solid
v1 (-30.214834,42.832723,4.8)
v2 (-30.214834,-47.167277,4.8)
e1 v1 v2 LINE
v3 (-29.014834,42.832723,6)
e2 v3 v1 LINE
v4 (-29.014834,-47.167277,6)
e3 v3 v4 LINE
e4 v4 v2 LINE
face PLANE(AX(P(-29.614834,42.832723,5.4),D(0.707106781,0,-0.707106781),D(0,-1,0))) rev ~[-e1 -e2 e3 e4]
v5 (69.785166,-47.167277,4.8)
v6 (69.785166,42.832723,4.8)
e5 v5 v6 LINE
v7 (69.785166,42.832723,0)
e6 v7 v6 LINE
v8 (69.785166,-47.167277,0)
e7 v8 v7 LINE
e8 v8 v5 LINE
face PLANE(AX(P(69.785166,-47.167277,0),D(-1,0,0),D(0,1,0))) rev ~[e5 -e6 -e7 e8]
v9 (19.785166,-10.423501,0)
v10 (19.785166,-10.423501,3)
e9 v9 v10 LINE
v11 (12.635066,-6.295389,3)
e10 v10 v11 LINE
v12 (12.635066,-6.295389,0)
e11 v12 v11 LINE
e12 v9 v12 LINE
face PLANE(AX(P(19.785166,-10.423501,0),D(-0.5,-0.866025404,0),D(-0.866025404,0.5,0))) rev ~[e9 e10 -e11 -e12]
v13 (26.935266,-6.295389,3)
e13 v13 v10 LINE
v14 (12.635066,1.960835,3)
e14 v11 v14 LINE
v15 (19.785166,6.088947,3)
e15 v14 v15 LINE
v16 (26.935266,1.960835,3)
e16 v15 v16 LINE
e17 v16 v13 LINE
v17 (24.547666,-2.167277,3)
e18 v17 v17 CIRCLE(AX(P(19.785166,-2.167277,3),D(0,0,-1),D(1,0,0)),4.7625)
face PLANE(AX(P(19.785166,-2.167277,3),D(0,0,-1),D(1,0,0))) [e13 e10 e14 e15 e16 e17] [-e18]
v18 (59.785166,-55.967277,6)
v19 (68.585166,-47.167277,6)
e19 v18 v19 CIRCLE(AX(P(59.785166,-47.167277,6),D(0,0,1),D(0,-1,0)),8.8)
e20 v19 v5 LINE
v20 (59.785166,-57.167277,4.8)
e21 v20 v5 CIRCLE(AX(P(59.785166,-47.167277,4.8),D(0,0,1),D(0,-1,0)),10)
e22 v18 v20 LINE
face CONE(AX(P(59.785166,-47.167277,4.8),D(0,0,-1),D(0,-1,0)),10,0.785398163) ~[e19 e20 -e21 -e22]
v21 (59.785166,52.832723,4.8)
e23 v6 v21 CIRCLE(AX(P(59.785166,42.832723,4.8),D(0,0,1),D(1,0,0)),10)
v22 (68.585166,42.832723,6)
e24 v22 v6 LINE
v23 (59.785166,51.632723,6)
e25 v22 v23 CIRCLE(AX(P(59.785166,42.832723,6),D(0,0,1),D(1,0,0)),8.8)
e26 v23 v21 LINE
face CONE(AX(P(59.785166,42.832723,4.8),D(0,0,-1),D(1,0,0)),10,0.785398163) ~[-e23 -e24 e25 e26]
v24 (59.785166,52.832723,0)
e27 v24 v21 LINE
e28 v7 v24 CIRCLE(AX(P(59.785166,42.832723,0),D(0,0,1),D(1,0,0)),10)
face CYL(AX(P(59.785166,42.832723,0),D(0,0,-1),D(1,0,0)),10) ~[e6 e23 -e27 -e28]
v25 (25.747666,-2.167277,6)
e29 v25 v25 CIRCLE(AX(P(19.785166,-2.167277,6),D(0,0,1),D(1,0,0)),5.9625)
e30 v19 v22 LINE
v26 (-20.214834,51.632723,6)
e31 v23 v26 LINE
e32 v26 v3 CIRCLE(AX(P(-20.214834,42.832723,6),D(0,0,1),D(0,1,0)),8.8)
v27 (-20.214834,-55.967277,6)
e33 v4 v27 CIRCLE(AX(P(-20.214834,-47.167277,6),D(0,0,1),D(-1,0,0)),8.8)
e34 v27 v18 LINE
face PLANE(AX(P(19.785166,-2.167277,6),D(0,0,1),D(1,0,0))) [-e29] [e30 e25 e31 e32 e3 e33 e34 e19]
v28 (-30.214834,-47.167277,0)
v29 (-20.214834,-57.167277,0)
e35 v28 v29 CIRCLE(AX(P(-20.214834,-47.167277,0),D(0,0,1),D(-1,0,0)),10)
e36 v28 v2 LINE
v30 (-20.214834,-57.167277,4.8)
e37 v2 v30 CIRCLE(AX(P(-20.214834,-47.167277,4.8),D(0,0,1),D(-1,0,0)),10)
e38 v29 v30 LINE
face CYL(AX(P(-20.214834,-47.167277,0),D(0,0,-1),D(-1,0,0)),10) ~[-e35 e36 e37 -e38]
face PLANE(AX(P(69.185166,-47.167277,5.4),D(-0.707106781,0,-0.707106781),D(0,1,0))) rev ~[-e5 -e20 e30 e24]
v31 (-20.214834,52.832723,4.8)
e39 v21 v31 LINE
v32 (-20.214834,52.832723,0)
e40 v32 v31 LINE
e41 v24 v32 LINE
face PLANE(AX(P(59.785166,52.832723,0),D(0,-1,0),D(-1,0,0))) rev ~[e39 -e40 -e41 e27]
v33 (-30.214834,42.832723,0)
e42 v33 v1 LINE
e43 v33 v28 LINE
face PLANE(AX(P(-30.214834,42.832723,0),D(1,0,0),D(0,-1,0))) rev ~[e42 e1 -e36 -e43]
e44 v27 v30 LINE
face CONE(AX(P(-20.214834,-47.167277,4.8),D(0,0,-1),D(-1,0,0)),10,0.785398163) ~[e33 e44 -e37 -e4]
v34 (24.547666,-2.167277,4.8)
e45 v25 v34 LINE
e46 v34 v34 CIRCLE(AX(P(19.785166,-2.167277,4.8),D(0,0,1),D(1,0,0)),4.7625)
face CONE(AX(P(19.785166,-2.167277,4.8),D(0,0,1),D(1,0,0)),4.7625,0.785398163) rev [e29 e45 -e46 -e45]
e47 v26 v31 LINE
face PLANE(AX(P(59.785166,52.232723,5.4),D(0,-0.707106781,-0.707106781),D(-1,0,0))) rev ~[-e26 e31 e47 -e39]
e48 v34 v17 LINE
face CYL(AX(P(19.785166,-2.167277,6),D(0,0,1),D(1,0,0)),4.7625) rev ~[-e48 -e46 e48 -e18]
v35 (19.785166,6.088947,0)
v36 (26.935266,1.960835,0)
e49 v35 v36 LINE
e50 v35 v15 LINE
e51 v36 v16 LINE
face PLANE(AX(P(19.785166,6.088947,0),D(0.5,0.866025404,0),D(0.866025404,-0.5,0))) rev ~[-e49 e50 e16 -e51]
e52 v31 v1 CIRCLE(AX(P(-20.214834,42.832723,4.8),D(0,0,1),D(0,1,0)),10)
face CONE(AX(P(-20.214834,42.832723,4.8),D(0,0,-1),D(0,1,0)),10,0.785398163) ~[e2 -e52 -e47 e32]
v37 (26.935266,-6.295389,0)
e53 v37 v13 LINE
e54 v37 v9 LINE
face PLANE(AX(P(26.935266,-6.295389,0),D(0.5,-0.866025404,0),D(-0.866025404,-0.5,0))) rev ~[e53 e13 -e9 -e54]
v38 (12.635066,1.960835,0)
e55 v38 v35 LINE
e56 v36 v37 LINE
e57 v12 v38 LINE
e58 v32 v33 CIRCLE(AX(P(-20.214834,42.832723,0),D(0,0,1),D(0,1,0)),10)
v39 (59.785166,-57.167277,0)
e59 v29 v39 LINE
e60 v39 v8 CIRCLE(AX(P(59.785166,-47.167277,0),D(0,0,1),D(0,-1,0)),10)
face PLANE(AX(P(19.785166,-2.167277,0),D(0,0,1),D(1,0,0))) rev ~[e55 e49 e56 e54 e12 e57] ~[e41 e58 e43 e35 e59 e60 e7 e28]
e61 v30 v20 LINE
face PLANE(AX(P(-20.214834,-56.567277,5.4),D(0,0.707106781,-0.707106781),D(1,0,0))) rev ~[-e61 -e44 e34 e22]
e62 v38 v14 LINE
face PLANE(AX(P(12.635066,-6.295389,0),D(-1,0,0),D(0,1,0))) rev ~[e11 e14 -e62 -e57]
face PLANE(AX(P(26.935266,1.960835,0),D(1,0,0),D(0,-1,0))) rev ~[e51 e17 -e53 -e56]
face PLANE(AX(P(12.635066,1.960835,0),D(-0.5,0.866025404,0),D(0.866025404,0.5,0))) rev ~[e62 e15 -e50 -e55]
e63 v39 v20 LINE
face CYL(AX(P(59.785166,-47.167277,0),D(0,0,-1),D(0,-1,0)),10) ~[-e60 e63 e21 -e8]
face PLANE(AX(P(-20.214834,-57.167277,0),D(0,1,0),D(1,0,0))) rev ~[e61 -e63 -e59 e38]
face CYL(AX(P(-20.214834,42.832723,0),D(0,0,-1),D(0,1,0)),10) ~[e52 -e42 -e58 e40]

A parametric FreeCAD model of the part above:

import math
import FreeCAD as App
import Part
import Sketcher

V = App.Vector
Q = App.Units.Quantity


def edges_at(feature, points):
    """Names of the edges that pass closest to the given points."""
    edges = feature.Shape.Edges
    near = lambda p: min(range(len(edges)), key=lambda i: edges[i].distToShape(Part.Vertex(*p))[0])
    return sorted({f"Edge{near(p) + 1}" for p in points})


def add_polygon(sketch, points):
    """Adds a closed chain of lines whose ends are joined by coincident constraints."""
    first, n = sketch.GeometryCount, len(points)
    for a, b in zip(points, points[1:] + points[:1]):
        sketch.addGeometry(Part.LineSegment(App.Vector(*a, 0), App.Vector(*b, 0)), False)
    for i in range(n):
        sketch.addConstraint(Sketcher.Constraint("Coincident", first + i, 2, first + (i + 1) % n, 1))

doc = App.newDocument("Part")
body = doc.addObject("PartDesign::Body", "Body")

# Sketch on XY plane
sketch1 = body.newObject("Sketcher::SketchObject", "Sketch")
sketch1.AttachmentSupport = (doc.getObject("XY_Plane"), [""])
sketch1.MapMode = "FlatFace"
sketch1.addGeometry([
    Part.ArcOfCircle(Part.Circle(V(-20.214834, -47.167277, 0), V(0, 0, 1), 10), math.radians(180), math.radians(270)),  # 0
    Part.LineSegment(V(-20.214834, -57.167277, 0), V(59.785166, -57.167277, 0)),  # 1
    Part.ArcOfCircle(Part.Circle(V(59.785166, -47.167277, 0), V(0, 0, 1), 10), math.radians(-90), math.radians(0)),  # 2
    Part.LineSegment(V(69.785166, -47.167277, 0), V(69.785166, 42.832723, 0)),  # 3
    Part.ArcOfCircle(Part.Circle(V(59.785166, 42.832723, 0), V(0, 0, 1), 10), math.radians(0), math.radians(90)),  # 4
    Part.LineSegment(V(59.785166, 52.832723, 0), V(-20.214834, 52.832723, 0)),  # 5
    Part.ArcOfCircle(Part.Circle(V(-20.214834, 42.832723, 0), V(0, 0, 1), 10), math.radians(90), math.radians(180)),  # 6
    Part.LineSegment(V(-30.214834, 42.832723, 0), V(-30.214834, -47.167277, 0)),  # 7
], False)
sketch1.addConstraint([
    Sketcher.Constraint("Tangent", 0, 2, 1, 1),
    Sketcher.Constraint("Tangent", 1, 2, 2, 1),
    Sketcher.Constraint("Tangent", 2, 2, 3, 1),
    Sketcher.Constraint("Tangent", 3, 2, 4, 1),
    Sketcher.Constraint("Tangent", 4, 2, 5, 1),
    Sketcher.Constraint("Tangent", 5, 2, 6, 1),
    Sketcher.Constraint("Tangent", 6, 2, 7, 1),
    Sketcher.Constraint("Tangent", 7, 2, 0, 1),
    Sketcher.Constraint("Horizontal", 1),
    Sketcher.Constraint("Vertical", 3),
    Sketcher.Constraint("Horizontal", 5),
    Sketcher.Constraint("Vertical", 7),
    Sketcher.Constraint("Equal", 0, 2),
    Sketcher.Constraint("Equal", 2, 4),
    Sketcher.Constraint("Equal", 4, 6),
    Sketcher.Constraint("Radius", 0, Q("10 mm")),
    Sketcher.Constraint("DistanceX", 1, 1, 1, 2, Q("80 mm")),
    Sketcher.Constraint("DistanceY", 3, 1, 3, 2, Q("90 mm")),
    Sketcher.Constraint("DistanceX", 0, 3, -1, 1, Q("20.214834 mm")),
    Sketcher.Constraint("DistanceY", 0, 3, -1, 1, Q("47.167277 mm")),
])
pad1 = body.newObject("PartDesign::Pad", "Pad")
pad1.Profile = sketch1
pad1.Length = 6

# Sketch on XY plane
sketch2 = body.newObject("Sketcher::SketchObject", "Sketch001")
sketch2.AttachmentSupport = (doc.getObject("XY_Plane"), [""])
sketch2.MapMode = "FlatFace"
sketch2.AttachmentOffset = App.Placement(V(0, 0, 6), App.Rotation())
sketch2.addGeometry(Part.Circle(V(19.785166, -2.167277, 0), V(0, 0, 1), 4.7625), False)
sketch2.addConstraint([
    Sketcher.Constraint("Diameter", 0, Q("9.525 mm")),
    Sketcher.Constraint("DistanceX", -1, 1, 0, 3, Q("19.785166 mm")),
    Sketcher.Constraint("DistanceY", 0, 3, -1, 1, Q("2.167277 mm")),
])
pocket1 = body.newObject("PartDesign::Pocket", "Pocket")
pocket1.Profile = sketch2
pocket1.Length = 25

# Sketch on XY plane
sketch3 = body.newObject("Sketcher::SketchObject", "Sketch002")
sketch3.AttachmentSupport = (doc.getObject("XY_Plane"), [""])
sketch3.MapMode = "FlatFace"
add_polygon(sketch3, [(26.935266, 1.960835), (26.935266, -6.295389), (19.785166, -10.423501), (12.635066, -6.295389), (12.635066, 1.960835), (19.785166, 6.088947)])  # lines 0-5
sketch3.addGeometry(Part.Circle(V(19.785166, -2.167277, 0), V(0, 0, 1), 4.7625), False)  # 6
sketch3.addConstraint([
    Sketcher.Constraint("Vertical", 0),
    Sketcher.Constraint("Vertical", 3),
    Sketcher.Constraint("Parallel", 1, 4),
    Sketcher.Constraint("Parallel", 2, 5),
    Sketcher.Constraint("Horizontal", 0, 2, 2, 2),
    Sketcher.Constraint("Horizontal", 3, 2, 5, 2),
    Sketcher.Constraint("Vertical", 6, 3, 1, 2),
    Sketcher.Constraint("Vertical", 1, 2, 4, 2),
    Sketcher.Constraint("Angle", 1, Q("-150 deg")),
    Sketcher.Constraint("Diameter", 6, Q("9.525 mm")),
    Sketcher.Constraint("DistanceY", 1, 2, -1, 1, Q("10.423501 mm")),
    Sketcher.Constraint("DistanceX", 6, 3, 0, 2, Q("7.1501 mm")),
    Sketcher.Constraint("DistanceY", 0, 2, 0, 1, Q("8.256224 mm")),
    Sketcher.Constraint("DistanceX", -1, 1, 6, 3, Q("19.785166 mm")),
    Sketcher.Constraint("DistanceY", 6, 3, -1, 1, Q("2.167277 mm")),
])
pocket2 = body.newObject("PartDesign::Pocket", "Pocket001")
pocket2.Profile = sketch3
pocket2.Length = 3
pocket2.Reversed = True
doc.recompute()

chamfer = body.newObject("PartDesign::Chamfer", "Chamfer")
chamfer.Base = (pocket2, edges_at(pocket2, [
    (-27.286, 49.904, 6),
    (19.785, 52.833, 6),
    (-30.215, -2.167, 6),
    (66.856, 49.904, 6),
    (-27.286, -54.238, 6),
    (69.785, -2.167, 6),
    (19.785, -57.167, 6),
    (66.856, -54.238, 6),
    (15.023, -2.167, 6),
]))
chamfer.Size = 1.2

doc.recompute()
